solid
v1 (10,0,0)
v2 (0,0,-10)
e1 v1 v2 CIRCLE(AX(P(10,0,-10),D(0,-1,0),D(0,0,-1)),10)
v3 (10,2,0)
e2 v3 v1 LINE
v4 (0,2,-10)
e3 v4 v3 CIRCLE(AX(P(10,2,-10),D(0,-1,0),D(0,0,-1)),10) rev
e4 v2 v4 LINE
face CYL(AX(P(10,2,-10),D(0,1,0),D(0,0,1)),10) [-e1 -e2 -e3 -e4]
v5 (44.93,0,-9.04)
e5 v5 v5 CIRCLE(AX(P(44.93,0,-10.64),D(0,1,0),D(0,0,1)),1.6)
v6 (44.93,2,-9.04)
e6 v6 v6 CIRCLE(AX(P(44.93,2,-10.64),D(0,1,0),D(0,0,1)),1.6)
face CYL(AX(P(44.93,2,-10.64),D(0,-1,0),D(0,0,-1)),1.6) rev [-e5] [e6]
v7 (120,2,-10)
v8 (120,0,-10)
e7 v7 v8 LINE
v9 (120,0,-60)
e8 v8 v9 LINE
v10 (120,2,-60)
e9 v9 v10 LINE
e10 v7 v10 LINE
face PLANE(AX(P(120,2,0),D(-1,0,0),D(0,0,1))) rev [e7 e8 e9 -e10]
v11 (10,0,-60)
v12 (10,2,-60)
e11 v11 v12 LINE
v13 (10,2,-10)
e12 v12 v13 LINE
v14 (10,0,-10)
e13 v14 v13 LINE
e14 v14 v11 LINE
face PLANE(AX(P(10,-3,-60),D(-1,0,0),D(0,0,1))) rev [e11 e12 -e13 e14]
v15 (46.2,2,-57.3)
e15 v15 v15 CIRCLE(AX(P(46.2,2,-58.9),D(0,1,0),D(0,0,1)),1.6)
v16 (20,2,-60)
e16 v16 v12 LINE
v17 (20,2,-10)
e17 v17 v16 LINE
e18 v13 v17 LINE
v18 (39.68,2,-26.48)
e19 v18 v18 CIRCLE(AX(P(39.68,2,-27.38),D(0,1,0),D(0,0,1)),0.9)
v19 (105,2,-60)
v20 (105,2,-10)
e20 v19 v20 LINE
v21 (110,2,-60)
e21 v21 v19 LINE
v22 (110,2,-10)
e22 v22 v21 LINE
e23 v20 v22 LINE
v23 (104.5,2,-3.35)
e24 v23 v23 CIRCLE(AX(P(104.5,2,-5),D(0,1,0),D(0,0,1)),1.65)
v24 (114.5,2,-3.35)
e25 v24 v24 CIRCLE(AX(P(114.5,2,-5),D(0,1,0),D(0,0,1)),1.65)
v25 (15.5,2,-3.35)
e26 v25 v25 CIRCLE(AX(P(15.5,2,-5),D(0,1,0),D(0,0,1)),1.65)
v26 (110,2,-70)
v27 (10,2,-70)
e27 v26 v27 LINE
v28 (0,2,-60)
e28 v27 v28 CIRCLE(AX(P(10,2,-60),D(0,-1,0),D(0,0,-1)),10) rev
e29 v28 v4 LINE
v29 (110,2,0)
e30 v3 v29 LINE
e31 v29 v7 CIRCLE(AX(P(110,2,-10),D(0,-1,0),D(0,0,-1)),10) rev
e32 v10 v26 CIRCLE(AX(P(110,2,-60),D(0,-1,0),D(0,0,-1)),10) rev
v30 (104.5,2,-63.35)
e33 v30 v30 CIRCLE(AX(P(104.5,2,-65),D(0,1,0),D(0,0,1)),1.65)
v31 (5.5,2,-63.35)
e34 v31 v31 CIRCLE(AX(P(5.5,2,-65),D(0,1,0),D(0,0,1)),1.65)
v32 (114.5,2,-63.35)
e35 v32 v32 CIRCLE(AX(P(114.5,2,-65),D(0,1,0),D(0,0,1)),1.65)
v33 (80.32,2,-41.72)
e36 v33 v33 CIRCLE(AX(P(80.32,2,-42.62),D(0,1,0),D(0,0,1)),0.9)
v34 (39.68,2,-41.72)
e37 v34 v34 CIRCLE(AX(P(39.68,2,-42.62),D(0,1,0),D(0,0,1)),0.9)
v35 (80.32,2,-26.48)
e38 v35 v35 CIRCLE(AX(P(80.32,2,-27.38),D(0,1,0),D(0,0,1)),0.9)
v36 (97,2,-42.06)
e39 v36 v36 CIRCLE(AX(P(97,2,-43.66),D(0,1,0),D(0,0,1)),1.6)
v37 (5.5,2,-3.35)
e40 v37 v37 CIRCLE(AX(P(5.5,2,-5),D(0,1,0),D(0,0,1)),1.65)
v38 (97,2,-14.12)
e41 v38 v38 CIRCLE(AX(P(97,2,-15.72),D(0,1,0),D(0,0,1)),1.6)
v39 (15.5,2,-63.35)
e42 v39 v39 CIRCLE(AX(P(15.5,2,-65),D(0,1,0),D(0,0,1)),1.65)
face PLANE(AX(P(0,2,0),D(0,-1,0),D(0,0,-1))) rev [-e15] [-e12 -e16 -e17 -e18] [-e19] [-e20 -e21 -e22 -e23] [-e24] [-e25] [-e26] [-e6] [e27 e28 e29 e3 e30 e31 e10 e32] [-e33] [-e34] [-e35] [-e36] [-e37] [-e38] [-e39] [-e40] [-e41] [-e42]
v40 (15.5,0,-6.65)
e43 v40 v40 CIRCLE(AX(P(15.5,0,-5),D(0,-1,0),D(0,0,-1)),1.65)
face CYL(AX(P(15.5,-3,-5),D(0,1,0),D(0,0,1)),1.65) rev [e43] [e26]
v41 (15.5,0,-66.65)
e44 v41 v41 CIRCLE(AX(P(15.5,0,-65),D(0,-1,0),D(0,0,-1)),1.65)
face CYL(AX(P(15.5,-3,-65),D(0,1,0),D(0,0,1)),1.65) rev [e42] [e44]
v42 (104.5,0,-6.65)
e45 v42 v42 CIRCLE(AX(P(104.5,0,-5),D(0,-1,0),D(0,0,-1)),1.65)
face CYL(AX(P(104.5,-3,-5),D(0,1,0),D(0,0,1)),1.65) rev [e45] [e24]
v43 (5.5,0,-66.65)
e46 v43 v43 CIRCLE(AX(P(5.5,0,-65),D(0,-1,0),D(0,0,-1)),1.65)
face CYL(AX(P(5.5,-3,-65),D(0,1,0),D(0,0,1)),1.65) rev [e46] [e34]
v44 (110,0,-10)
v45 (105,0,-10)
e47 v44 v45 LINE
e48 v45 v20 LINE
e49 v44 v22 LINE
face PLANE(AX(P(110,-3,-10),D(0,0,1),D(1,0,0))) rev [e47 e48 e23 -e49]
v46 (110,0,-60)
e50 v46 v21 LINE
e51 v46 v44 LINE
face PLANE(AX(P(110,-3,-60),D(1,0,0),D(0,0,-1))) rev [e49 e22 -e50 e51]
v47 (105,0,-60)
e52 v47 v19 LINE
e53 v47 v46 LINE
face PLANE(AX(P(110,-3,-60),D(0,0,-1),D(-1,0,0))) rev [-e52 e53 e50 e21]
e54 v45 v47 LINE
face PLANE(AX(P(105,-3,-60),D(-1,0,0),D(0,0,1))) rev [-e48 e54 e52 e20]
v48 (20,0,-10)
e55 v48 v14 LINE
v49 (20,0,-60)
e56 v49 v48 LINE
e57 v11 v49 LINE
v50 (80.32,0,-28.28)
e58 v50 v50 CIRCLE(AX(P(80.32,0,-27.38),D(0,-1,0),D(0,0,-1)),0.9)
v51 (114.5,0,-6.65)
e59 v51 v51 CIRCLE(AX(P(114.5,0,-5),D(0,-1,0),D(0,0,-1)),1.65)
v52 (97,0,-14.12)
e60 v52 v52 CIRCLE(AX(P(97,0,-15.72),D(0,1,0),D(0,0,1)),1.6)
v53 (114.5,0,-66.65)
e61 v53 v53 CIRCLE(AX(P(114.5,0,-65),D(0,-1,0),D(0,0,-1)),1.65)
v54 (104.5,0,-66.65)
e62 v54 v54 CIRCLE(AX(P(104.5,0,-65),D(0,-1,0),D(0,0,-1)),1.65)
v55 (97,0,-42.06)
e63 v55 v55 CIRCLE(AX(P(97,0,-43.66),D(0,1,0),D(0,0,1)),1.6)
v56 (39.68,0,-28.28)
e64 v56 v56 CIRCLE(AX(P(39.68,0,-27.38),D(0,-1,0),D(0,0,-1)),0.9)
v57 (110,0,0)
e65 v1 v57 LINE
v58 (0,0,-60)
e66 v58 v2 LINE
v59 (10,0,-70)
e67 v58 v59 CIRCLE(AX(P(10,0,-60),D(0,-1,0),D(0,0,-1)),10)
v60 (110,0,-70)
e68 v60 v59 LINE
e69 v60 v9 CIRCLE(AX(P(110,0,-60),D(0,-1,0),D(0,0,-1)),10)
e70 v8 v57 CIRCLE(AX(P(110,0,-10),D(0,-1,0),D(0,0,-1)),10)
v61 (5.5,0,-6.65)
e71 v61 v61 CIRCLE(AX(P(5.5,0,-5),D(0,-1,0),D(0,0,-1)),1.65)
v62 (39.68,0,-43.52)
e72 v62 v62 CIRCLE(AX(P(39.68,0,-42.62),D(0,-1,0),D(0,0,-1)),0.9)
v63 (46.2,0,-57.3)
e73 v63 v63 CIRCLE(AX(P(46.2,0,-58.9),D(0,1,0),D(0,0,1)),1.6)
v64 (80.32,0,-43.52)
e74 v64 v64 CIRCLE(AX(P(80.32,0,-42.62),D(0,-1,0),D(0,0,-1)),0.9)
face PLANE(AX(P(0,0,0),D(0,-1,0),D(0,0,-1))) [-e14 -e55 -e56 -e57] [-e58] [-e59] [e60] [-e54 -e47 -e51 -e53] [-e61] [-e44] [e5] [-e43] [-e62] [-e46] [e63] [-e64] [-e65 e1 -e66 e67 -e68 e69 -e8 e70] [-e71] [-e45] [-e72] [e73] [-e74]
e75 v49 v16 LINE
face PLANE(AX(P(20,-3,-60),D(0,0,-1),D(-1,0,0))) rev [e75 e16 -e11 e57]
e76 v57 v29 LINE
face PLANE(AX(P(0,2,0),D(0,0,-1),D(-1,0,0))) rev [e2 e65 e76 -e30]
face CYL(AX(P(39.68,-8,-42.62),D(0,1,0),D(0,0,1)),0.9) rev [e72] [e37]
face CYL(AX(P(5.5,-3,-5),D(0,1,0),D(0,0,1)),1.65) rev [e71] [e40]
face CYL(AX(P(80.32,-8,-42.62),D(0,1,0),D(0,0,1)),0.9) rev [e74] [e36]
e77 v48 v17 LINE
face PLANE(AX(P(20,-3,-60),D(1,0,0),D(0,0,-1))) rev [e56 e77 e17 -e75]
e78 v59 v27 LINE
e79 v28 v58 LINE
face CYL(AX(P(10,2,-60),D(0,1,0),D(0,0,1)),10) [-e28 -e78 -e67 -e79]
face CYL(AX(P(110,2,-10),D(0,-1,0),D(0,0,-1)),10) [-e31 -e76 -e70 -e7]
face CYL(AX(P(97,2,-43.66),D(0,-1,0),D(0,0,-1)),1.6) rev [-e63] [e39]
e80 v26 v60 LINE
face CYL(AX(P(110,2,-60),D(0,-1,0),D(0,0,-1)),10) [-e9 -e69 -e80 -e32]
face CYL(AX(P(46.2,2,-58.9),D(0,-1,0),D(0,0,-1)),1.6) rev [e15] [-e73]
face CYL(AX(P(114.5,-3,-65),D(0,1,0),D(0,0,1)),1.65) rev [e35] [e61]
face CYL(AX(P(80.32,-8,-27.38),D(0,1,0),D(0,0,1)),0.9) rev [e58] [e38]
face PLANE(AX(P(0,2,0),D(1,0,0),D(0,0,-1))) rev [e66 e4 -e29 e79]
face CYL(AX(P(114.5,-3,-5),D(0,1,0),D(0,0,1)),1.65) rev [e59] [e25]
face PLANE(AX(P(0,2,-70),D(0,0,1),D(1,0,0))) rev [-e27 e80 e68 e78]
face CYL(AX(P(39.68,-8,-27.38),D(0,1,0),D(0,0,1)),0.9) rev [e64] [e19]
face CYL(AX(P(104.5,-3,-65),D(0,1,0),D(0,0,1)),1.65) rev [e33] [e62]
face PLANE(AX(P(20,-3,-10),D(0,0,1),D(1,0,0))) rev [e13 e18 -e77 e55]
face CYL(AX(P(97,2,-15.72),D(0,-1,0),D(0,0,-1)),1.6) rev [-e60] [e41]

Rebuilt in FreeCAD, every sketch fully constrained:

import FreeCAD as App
import Part
import Sketcher
from FreeCAD import Vector
Q = App.Units.Quantity


def edges_at(feature, points):
    """Names of the edges that pass closest to the given points."""
    edges = feature.Shape.Edges
    near = lambda p: min(range(len(edges)), key=lambda i: edges[i].distToShape(Part.Vertex(*p))[0])
    return sorted({f"Edge{near(p) + 1}" for p in points})

doc = App.newDocument("Part")
body = doc.addObject("PartDesign::Body", "Body")

sketch1 = doc.addObject("Sketcher::SketchObject", "Sketch")
body.addObject(sketch1)
sketch1.AttachmentSupport = (doc.XZ_Plane, [""])
sketch1.MapMode = "FlatFace"
sketch1.addGeometry([
    Part.LineSegment(Vector(0, -70, 0), Vector(0, 0, 0)),
    Part.LineSegment(Vector(0, 0, 0), Vector(120, 0, 0)),
    Part.LineSegment(Vector(120, 0, 0), Vector(120, -70, 0)),
    Part.LineSegment(Vector(120, -70, 0), Vector(0, -70, 0)),
    Part.Circle(Vector(44.93, -10.64, 0), Vector(0, 0, 1), 1.6),
    Part.Circle(Vector(97, -15.72, 0), Vector(0, 0, 1), 1.6),
    Part.Circle(Vector(46.2, -58.9, 0), Vector(0, 0, 1), 1.6),
    Part.Circle(Vector(97, -43.66, 0), Vector(0, 0, 1), 1.6),
], False)
sketch1.addConstraint([
    Sketcher.Constraint("Coincident", 0, 2, 1, 1),
    Sketcher.Constraint("Coincident", 1, 2, 2, 1),
    Sketcher.Constraint("Coincident", 2, 2, 3, 1),
    Sketcher.Constraint("Coincident", 3, 2, 0, 1),
    Sketcher.Constraint("Vertical", 0),
    Sketcher.Constraint("Horizontal", 1),
    Sketcher.Constraint("Vertical", 2),
    Sketcher.Constraint("Horizontal", 3),
    Sketcher.Constraint("Coincident", 0, 2, -1, 1),
    Sketcher.Constraint("Equal", 4, 5),
    Sketcher.Constraint("Equal", 5, 6),
    Sketcher.Constraint("Equal", 6, 7),
    Sketcher.Constraint("Vertical", 5, 3, 7, 3),
    Sketcher.Constraint("Diameter", 4, Q("3.2 mm")),
    Sketcher.Constraint("DistanceX", 1, 1, 1, 2, Q("120 mm")),
    Sketcher.Constraint("DistanceY", 0, 1, 0, 2, Q("70 mm")),
    Sketcher.Constraint("DistanceX", -1, 1, 5, 3, Q("97 mm")),
    Sketcher.Constraint("DistanceX", -1, 1, 6, 3, Q("46.2 mm")),
    Sketcher.Constraint("DistanceY", 6, 3, -1, 1, Q("58.9 mm")),
    Sketcher.Constraint("DistanceX", -1, 1, 4, 3, Q("44.93 mm")),
    Sketcher.Constraint("DistanceY", 4, 3, -1, 1, Q("10.64 mm")),
    Sketcher.Constraint("DistanceY", 5, 3, -1, 1, Q("15.72 mm")),
    Sketcher.Constraint("DistanceY", 7, 3, -1, 1, Q("43.66 mm")),
])
pad1 = doc.addObject("PartDesign::Pad", "Pad")
body.addObject(pad1)
pad1.Profile = sketch1
pad1.Length = 2
pad1.Reversed = True
doc.recompute()

fillet = doc.addObject("PartDesign::Fillet", "Fillet")
body.addObject(fillet)
fillet.Base = (pad1, edges_at(pad1, [(0, 1, 0)]))
fillet.Radius = 10
doc.recompute()

fillet2 = doc.addObject("PartDesign::Fillet", "Fillet001")
body.addObject(fillet2)
fillet2.Base = (fillet, edges_at(fillet, [(0, 1, -70)]))
fillet2.Radius = 10
doc.recompute()

fillet3 = doc.addObject("PartDesign::Fillet", "Fillet002")
body.addObject(fillet3)
fillet3.Base = (fillet2, edges_at(fillet2, [(120, 1, -70)]))
fillet3.Radius = 10
doc.recompute()

fillet4 = doc.addObject("PartDesign::Fillet", "Fillet003")
body.addObject(fillet4)
fillet4.Base = (fillet3, edges_at(fillet3, [(120, 1, 0)]))
fillet4.Radius = 10

sketch2 = doc.addObject("Sketcher::SketchObject", "Sketch001")
body.addObject(sketch2)
sketch2.AttachmentSupport = (doc.XZ_Plane, [""])
sketch2.MapMode = "FlatFace"
sketch2.AttachmentOffset = App.Placement(Vector(0, 0, -2), App.Rotation())
sketch2.addGeometry([
    Part.LineSegment(Vector(10, -60, 0), Vector(10, -10, 0)),
    Part.LineSegment(Vector(10, -10, 0), Vector(20, -10, 0)),
    Part.LineSegment(Vector(20, -10, 0), Vector(20, -60, 0)),
    Part.LineSegment(Vector(20, -60, 0), Vector(10, -60, 0)),
    Part.LineSegment(Vector(105, -60, 0), Vector(105, -10, 0)),
    Part.LineSegment(Vector(105, -10, 0), Vector(110, -10, 0)),
    Part.LineSegment(Vector(110, -10, 0), Vector(110, -60, 0)),
    Part.LineSegment(Vector(110, -60, 0), Vector(105, -60, 0)),
], False)
sketch2.addConstraint([
    Sketcher.Constraint("Coincident", 0, 2, 1, 1),
    Sketcher.Constraint("Coincident", 1, 2, 2, 1),
    Sketcher.Constraint("Coincident", 2, 2, 3, 1),
    Sketcher.Constraint("Coincident", 3, 2, 0, 1),
    Sketcher.Constraint("Coincident", 4, 2, 5, 1),
    Sketcher.Constraint("Coincident", 5, 2, 6, 1),
    Sketcher.Constraint("Coincident", 6, 2, 7, 1),
    Sketcher.Constraint("Coincident", 7, 2, 4, 1),
    Sketcher.Constraint("Vertical", 0),
    Sketcher.Constraint("Horizontal", 1),
    Sketcher.Constraint("Vertical", 2),
    Sketcher.Constraint("Horizontal", 3),
    Sketcher.Constraint("Vertical", 4),
    Sketcher.Constraint("Horizontal", 5),
    Sketcher.Constraint("Vertical", 6),
    Sketcher.Constraint("Horizontal", 7),
    Sketcher.Constraint("Horizontal", 1, 2, 4, 2),
    Sketcher.Constraint("Horizontal", 3, 2, 6, 2),
    Sketcher.Constraint("DistanceX", 1, 1, 1, 2, Q("10 mm")),
    Sketcher.Constraint("DistanceX", 5, 1, 5, 2, Q("5 mm")),
    Sketcher.Constraint("DistanceY", 0, 1, 0, 2, Q("50 mm")),
    Sketcher.Constraint("DistanceX", -1, 1, 0, 2, Q("10 mm")),
    Sketcher.Constraint("DistanceY", 0, 2, -1, 1, Q("10 mm")),
    Sketcher.Constraint("DistanceX", -1, 1, 4, 2, Q("105 mm")),
])
pocket1 = doc.addObject("PartDesign::Pocket", "Pocket")
body.addObject(pocket1)
pocket1.Profile = sketch2
pocket1.Length = 5
pocket1.Reversed = True

sketch3 = doc.addObject("Sketcher::SketchObject", "Sketch002")
body.addObject(sketch3)
sketch3.AttachmentSupport = (doc.XZ_Plane, [""])
sketch3.MapMode = "FlatFace"
sketch3.AttachmentOffset = App.Placement(Vector(0, 0, -2), App.Rotation())
sketch3.addGeometry([
    Part.Circle(Vector(5.5, -65, 0), Vector(0, 0, 1), 1.65),
    Part.Circle(Vector(114.5, -65, 0), Vector(0, 0, 1), 1.65),
    Part.Circle(Vector(5.5, -5, 0), Vector(0, 0, 1), 1.65),
    Part.Circle(Vector(114.5, -5, 0), Vector(0, 0, 1), 1.65),
    Part.Circle(Vector(15.5, -65, 0), Vector(0, 0, 1), 1.65),
    Part.Circle(Vector(104.5, -65, 0), Vector(0, 0, 1), 1.65),
    Part.Circle(Vector(15.5, -5, 0), Vector(0, 0, 1), 1.65),
    Part.Circle(Vector(104.5, -5, 0), Vector(0, 0, 1), 1.65),
], False)
sketch3.addConstraint([
    Sketcher.Constraint("Equal", 0, 1),
    Sketcher.Constraint("Equal", 1, 2),
    Sketcher.Constraint("Equal", 2, 3),
    Sketcher.Constraint("Equal", 3, 4),
    Sketcher.Constraint("Equal", 4, 5),
    Sketcher.Constraint("Equal", 5, 6),
    Sketcher.Constraint("Equal", 6, 7),
    Sketcher.Constraint("Horizontal", 0, 3, 1, 3),
    Sketcher.Constraint("Horizontal", 2, 3, 3, 3),
    Sketcher.Constraint("Horizontal", 1, 3, 4, 3),
    Sketcher.Constraint("Horizontal", 4, 3, 5, 3),
    Sketcher.Constraint("Horizontal", 3, 3, 6, 3),
    Sketcher.Constraint("Horizontal", 6, 3, 7, 3),
    Sketcher.Constraint("Vertical", 0, 3, 2, 3),
    Sketcher.Constraint("Vertical", 1, 3, 3, 3),
    Sketcher.Constraint("Vertical", 4, 3, 6, 3),
    Sketcher.Constraint("Vertical", 5, 3, 7, 3),
    Sketcher.Constraint("Diameter", 0, Q("3.3 mm")),
    Sketcher.Constraint("DistanceY", 0, 3, -1, 1, Q("65 mm")),
    Sketcher.Constraint("DistanceY", 2, 3, -1, 1, Q("5 mm")),
    Sketcher.Constraint("DistanceX", 0, 3, 1, 3, Q("109 mm")),
    Sketcher.Constraint("DistanceX", 0, 3, 4, 3, Q("10 mm")),
    Sketcher.Constraint("DistanceX", 5, 3, 1, 3, Q("10 mm")),
    Sketcher.Constraint("DistanceX", -1, 1, 0, 3, Q("5.5 mm")),
])
pocket2 = doc.addObject("PartDesign::Pocket", "Pocket001")
body.addObject(pocket2)
pocket2.Profile = sketch3
pocket2.Length = 5
pocket2.Reversed = True

sketch4 = doc.addObject("Sketcher::SketchObject", "Sketch003")
body.addObject(sketch4)
sketch4.AttachmentSupport = (doc.XZ_Plane, [""])
sketch4.MapMode = "FlatFace"
sketch4.AttachmentOffset = App.Placement(Vector(0, 0, -2), App.Rotation())
sketch4.addGeometry([
    Part.Circle(Vector(39.68, -42.62, 0), Vector(0, 0, 1), 0.9),
    Part.Circle(Vector(39.68, -27.38, 0), Vector(0, 0, 1), 0.9),
    Part.Circle(Vector(80.32, -42.62, 0), Vector(0, 0, 1), 0.9),
    Part.Circle(Vector(80.32, -27.38, 0), Vector(0, 0, 1), 0.9),
], False)
sketch4.addConstraint([
    Sketcher.Constraint("Equal", 0, 1),
    Sketcher.Constraint("Equal", 1, 2),
    Sketcher.Constraint("Equal", 2, 3),
    Sketcher.Constraint("Horizontal", 0, 3, 2, 3),
    Sketcher.Constraint("Horizontal", 1, 3, 3, 3),
    Sketcher.Constraint("Vertical", 0, 3, 1, 3),
    Sketcher.Constraint("Vertical", 2, 3, 3, 3),
    Sketcher.Constraint("Diameter", 0, Q("1.8 mm")),
    Sketcher.Constraint("DistanceX", -1, 1, 0, 3, Q("39.68 mm")),
    Sketcher.Constraint("DistanceY", 0, 3, -1, 1, Q("42.62 mm")),
    Sketcher.Constraint("DistanceY", 1, 3, -1, 1, Q("27.38 mm")),
    Sketcher.Constraint("DistanceX", -1, 1, 2, 3, Q("80.32 mm")),
])
pocket3 = doc.addObject("PartDesign::Pocket", "Pocket002")
body.addObject(pocket3)
pocket3.Profile = sketch4
pocket3.Length = 10
pocket3.Reversed = True

doc.recompute()
